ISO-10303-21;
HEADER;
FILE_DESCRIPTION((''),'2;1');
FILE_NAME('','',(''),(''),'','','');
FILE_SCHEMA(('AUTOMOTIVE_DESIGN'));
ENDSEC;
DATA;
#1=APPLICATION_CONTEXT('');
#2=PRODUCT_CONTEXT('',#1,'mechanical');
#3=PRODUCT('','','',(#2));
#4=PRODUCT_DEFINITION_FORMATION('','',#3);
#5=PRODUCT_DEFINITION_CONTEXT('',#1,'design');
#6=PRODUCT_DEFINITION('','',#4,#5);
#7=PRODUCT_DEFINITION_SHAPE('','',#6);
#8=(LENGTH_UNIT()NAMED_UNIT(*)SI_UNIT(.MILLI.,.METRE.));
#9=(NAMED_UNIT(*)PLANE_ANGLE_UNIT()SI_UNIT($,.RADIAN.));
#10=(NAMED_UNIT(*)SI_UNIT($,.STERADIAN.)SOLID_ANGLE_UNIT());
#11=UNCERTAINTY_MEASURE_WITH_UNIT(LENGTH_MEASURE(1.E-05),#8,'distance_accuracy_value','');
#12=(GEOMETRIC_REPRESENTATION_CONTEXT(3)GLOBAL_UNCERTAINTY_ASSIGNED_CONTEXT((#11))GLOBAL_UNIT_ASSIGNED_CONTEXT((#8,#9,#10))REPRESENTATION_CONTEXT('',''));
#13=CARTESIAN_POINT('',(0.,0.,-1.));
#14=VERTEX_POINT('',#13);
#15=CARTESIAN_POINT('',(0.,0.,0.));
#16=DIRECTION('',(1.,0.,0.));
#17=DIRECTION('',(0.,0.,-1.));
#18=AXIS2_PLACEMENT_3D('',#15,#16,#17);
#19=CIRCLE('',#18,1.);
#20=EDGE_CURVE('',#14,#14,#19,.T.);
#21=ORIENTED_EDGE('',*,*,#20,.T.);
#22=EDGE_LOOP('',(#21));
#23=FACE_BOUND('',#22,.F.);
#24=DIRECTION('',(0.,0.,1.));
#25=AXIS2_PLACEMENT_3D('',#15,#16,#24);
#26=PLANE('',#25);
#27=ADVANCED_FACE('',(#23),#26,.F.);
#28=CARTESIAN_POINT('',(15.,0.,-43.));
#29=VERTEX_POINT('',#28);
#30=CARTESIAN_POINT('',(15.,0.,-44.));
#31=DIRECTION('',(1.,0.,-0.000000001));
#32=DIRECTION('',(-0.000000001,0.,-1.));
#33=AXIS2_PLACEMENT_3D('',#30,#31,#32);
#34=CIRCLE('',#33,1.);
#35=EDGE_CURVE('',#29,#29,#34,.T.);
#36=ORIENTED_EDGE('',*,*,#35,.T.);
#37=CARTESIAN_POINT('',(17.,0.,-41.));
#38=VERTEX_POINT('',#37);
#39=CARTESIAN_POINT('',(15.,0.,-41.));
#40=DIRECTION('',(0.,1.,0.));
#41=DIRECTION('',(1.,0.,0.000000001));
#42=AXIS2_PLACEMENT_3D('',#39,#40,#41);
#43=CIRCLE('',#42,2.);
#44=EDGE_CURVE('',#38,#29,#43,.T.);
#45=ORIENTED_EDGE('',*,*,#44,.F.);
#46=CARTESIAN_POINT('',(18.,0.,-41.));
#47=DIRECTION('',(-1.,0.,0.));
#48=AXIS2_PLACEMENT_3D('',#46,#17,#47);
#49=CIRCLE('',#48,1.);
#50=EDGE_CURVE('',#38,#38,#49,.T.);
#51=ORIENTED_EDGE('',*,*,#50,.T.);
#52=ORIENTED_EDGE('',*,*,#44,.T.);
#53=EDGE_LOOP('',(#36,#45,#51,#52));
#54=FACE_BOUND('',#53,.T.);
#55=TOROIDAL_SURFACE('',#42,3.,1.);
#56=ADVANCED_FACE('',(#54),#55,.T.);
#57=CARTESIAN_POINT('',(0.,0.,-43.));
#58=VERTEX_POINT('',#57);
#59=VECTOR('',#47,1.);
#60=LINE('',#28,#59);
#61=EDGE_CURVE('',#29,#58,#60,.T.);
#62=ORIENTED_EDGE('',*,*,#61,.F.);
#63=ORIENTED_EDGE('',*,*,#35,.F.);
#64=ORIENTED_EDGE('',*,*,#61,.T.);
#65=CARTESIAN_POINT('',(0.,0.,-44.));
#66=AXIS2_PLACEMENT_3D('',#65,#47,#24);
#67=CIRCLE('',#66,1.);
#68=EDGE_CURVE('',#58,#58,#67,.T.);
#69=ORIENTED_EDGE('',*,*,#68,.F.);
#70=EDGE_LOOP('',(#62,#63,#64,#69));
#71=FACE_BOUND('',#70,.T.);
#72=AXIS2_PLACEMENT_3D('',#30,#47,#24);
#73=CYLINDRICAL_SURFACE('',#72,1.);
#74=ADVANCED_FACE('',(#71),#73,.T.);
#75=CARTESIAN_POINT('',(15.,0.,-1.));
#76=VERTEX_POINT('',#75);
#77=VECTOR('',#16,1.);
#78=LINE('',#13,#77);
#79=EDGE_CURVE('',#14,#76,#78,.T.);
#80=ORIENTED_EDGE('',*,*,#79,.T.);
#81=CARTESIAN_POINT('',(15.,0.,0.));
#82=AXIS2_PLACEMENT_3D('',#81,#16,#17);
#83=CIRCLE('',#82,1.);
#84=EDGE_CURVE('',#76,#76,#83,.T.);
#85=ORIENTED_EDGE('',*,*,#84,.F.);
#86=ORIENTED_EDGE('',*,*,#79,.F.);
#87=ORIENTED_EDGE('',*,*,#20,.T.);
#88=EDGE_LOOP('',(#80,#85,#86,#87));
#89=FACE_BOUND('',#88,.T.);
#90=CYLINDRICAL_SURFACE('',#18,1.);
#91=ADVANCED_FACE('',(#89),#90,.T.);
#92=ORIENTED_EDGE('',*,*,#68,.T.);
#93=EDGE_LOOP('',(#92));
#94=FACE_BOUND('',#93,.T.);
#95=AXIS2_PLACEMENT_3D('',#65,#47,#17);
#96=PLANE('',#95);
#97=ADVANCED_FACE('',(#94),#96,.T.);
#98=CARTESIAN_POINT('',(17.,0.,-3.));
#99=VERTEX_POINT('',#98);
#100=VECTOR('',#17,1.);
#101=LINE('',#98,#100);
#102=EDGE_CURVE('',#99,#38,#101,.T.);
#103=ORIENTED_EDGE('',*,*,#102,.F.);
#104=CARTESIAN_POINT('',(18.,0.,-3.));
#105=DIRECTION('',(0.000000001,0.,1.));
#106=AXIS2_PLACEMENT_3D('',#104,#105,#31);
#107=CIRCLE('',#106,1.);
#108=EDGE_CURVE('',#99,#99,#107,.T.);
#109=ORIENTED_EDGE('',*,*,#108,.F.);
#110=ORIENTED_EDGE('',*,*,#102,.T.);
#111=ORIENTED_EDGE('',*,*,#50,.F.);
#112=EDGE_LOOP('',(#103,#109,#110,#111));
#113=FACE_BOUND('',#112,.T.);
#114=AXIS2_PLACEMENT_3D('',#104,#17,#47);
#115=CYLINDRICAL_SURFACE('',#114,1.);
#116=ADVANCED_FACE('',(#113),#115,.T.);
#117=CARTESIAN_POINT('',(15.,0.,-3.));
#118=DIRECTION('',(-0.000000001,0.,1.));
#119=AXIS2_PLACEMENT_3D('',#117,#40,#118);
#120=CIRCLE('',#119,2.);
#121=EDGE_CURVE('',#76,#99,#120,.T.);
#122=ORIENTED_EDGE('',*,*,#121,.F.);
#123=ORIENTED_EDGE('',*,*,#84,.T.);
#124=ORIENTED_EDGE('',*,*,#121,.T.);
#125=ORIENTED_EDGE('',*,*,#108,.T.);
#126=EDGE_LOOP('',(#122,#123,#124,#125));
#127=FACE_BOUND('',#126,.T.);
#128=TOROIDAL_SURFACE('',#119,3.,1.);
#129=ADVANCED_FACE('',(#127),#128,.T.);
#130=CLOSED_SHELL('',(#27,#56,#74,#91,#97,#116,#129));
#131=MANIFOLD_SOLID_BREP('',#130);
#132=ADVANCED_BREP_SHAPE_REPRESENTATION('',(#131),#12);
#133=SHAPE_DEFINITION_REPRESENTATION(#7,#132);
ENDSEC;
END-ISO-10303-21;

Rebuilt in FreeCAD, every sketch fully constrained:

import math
import FreeCAD as App
import Part
import Sketcher
Q = App.Units.Quantity

doc = App.newDocument("Part")
body = doc.addObject("PartDesign::Body", "Body")

sketch1 = doc.addObject("Sketcher::SketchObject", "Sketch")
body.addObject(sketch1)
sketch1.AttachmentSupport = (doc.YZ_Plane, [""])
sketch1.MapMode = "FlatFace"
sketch1.addGeometry(Part.Circle(App.Vector(0, 0, 0), App.Vector(0, 0, 1), 1), False)
sketch1.addConstraint([
    Sketcher.Constraint("Coincident", 0, 3, -1, 1),
    Sketcher.Constraint("Diameter", 0, Q("2 mm")),
])

sketch2 = doc.addObject("Sketcher::SketchObject", "Sketch001")
body.addObject(sketch2)
sketch2.AttachmentSupport = (doc.XZ_Plane, [""])
sketch2.MapMode = "FlatFace"
sketch2.addGeometry([
    Part.LineSegment(App.Vector(0, 0, 0), App.Vector(15, 0, 0)),
    Part.ArcOfCircle(Part.Circle(App.Vector(15, -3, 0), App.Vector(0, 0, 1), 3), math.radians(0), math.radians(90)),
    Part.LineSegment(App.Vector(18, -3, 0), App.Vector(18, -41, 0)),
    Part.ArcOfCircle(Part.Circle(App.Vector(15, -41, 0), App.Vector(0, 0, 1), 3), math.radians(-90), math.radians(0)),
    Part.LineSegment(App.Vector(15, -44, 0), App.Vector(0, -44, 0)),
], False)
sketch2.addConstraint([
    Sketcher.Constraint("Tangent", 0, 2, 1, 2),
    Sketcher.Constraint("Tangent", 1, 1, 2, 1),
    Sketcher.Constraint("Tangent", 2, 2, 3, 2),
    Sketcher.Constraint("Tangent", 3, 1, 4, 1),
    Sketcher.Constraint("Horizontal", 0),
    Sketcher.Constraint("Vertical", 2),
    Sketcher.Constraint("Horizontal", 4),
    Sketcher.Constraint("Coincident", 0, 1, -1, 1),
    Sketcher.Constraint("Equal", 1, 3),
    Sketcher.Constraint("PointOnObject", 4, 2, -2),
    Sketcher.Constraint("Radius", 1, Q("3 mm")),
    Sketcher.Constraint("DistanceX", 0, 1, 0, 2, Q("15 mm")),
    Sketcher.Constraint("DistanceY", 2, 2, 2, 1, Q("38 mm")),
])
doc.recompute()

additivepipe = doc.addObject("PartDesign::AdditivePipe", "AdditivePipe")
body.addObject(additivepipe)
additivepipe.Profile = sketch1
additivepipe.Spine = (sketch2, ["Edge1", "Edge2", "Edge3", "Edge4", "Edge5"])

doc.recompute()
